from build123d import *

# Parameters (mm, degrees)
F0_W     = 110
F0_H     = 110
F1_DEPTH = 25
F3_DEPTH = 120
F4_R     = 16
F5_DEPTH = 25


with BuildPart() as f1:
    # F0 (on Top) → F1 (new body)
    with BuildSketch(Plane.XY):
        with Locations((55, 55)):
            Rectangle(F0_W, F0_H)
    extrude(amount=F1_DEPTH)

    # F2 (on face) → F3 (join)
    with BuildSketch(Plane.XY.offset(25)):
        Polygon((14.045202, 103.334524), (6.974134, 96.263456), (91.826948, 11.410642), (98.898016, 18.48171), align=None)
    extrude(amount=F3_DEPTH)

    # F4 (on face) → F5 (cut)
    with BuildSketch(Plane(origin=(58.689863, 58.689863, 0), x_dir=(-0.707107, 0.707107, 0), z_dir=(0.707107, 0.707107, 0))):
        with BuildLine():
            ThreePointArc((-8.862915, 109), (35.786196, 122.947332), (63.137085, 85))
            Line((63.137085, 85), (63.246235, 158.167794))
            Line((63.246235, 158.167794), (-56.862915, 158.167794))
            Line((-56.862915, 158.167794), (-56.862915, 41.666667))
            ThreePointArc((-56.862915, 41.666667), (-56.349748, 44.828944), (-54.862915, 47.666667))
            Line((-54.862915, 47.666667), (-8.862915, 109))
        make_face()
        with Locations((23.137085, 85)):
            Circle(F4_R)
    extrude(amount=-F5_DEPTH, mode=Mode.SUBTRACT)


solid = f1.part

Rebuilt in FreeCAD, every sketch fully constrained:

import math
import FreeCAD as App
import Part
import Sketcher
Q = App.Units.Quantity


def add_polygon(sketch, points):
    """Adds a closed chain of lines whose ends are joined by coincident constraints."""
    first, n = sketch.GeometryCount, len(points)
    for a, b in zip(points, points[1:] + points[:1]):
        sketch.addGeometry(Part.LineSegment(App.Vector(*a, 0), App.Vector(*b, 0)), False)
    for i in range(n):
        sketch.addConstraint(Sketcher.Constraint("Coincident", first + i, 2, first + (i + 1) % n, 1))

doc = App.newDocument("Part")
params = doc.addObject("Spreadsheet::Sheet", "Params")
for row, (alias, value) in enumerate([
    ("sketch1_width", "110 mm"),
    ("pad1_length", "25 mm"),
    ("sketch2_length", "10 mm"),
    ("sketch2_length2", "120 mm"),
    ("pad2_length", "120 mm"),
    ("sketch3_diameter", "32 mm"),
    ("sketch3_radius", "40 mm"),
    ("pocket1_length", "25 mm"),
], start=1):
    params.set(f"A{row}", alias)
    params.set(f"B{row}", "=" + value)
    params.setAlias(f"B{row}", alias)

body = doc.addObject("PartDesign::Body", "Body")

# Sketch on XY plane
sketch1 = body.newObject("Sketcher::SketchObject", "Sketch")
sketch1.AttachmentSupport = (doc.getObject("XY_Plane"), [""])
sketch1.MapMode = "FlatFace"
add_polygon(sketch1, [(0, 110), (0, 0), (110, 0), (110, 110)])  # lines 0-3
sketch1.addConstraint(Sketcher.Constraint("Vertical", 0))
sketch1.addConstraint(Sketcher.Constraint("Horizontal", 1))
sketch1.addConstraint(Sketcher.Constraint("Vertical", 2))
sketch1.addConstraint(Sketcher.Constraint("Horizontal", 3))
sketch1.addConstraint(Sketcher.Constraint("Coincident", 0, 2, -1, 1))
sketch1.addConstraint(Sketcher.Constraint("Equal", 3, 0))
sketch1.addConstraint(Sketcher.Constraint("DistanceX", 1, 1, 1, 2, 110.0))
sketch1.setExpression("Constraints[10]", "Params.sketch1_width")
pad1 = body.newObject("PartDesign::Pad", "Pad")
pad1.Profile = sketch1
pad1.setExpression("Length", "Params.pad1_length")

# Sketch on XY plane
sketch2 = body.newObject("Sketcher::SketchObject", "Sketch001")
sketch2.AttachmentSupport = (doc.getObject("XY_Plane"), [""])
sketch2.MapMode = "FlatFace"
sketch2.AttachmentOffset = App.Placement(App.Vector(0, 0, 25), App.Rotation())
add_polygon(sketch2, [(14, 103), (7, 96), (92, 11), (99, 18)])  # lines 0-3
sketch2.addConstraint(Sketcher.Constraint("Perpendicular", 0, 1))
sketch2.addConstraint(Sketcher.Constraint("Perpendicular", 1, 2))
sketch2.addConstraint(Sketcher.Constraint("Perpendicular", 2, 3))
sketch2.addConstraint(Sketcher.Constraint("Angle", 0, Q("-135 deg")))
sketch2.addConstraint(Sketcher.Constraint("Distance", 0, 10.0))
sketch2.addConstraint(Sketcher.Constraint("Distance", 1, 120.0))
sketch2.addConstraint(Sketcher.Constraint("DistanceX", -1, 1, 1, 2, 91.826948))
sketch2.addConstraint(Sketcher.Constraint("DistanceY", -1, 1, 1, 2, 11.410642))
sketch2.setExpression("Constraints[8]", "Params.sketch2_length")
sketch2.setExpression("Constraints[9]", "Params.sketch2_length2")
pad2 = body.newObject("PartDesign::Pad", "Pad001")
pad2.Profile = sketch2
pad2.setExpression("Length", "Params.pad2_length")

# Sketch on an angled plane
sketch3 = body.newObject("Sketcher::SketchObject", "Sketch002")
sketch3.Placement = App.Placement(App.Vector(58.689863, 58.689863, 0), App.Rotation(App.Vector(-0.707106781, 0.707106781, 0), App.Vector(0, 0, 0.999999999), App.Vector(0.707106781, 0.707106781, 0), "ZXY"))
sketch3.addGeometry(Part.ArcOfCircle(Part.Circle(App.Vector(23, 85, 0), App.Vector(0, 0, 1), 40), math.radians(0), math.radians(143)), False)
sketch3.addGeometry(Part.LineSegment(App.Vector(63, 85, 0), App.Vector(63, 158, 0)), False)
sketch3.addGeometry(Part.LineSegment(App.Vector(63, 158, 0), App.Vector(-57, 158, 0)), False)
sketch3.addGeometry(Part.LineSegment(App.Vector(-57, 158, 0), App.Vector(-57, 42, 0)), False)
sketch3.addGeometry(Part.ArcOfCircle(Part.Circle(App.Vector(-47, 42, 0), App.Vector(0, 0, 1), 10), math.radians(143), math.radians(180)), False)
sketch3.addGeometry(Part.LineSegment(App.Vector(-55, 48, 0), App.Vector(-9, 109, 0)), False)
sketch3.addGeometry(Part.Circle(App.Vector(23, 85, 0), App.Vector(0, 0, 1), 16), False)
sketch3.addConstraint(Sketcher.Constraint("Coincident", 0, 1, 1, 1))
sketch3.addConstraint(Sketcher.Constraint("Coincident", 1, 2, 2, 1))
sketch3.addConstraint(Sketcher.Constraint("Coincident", 2, 2, 3, 1))
sketch3.addConstraint(Sketcher.Constraint("Tangent", 3, 2, 4, 2))
sketch3.addConstraint(Sketcher.Constraint("Tangent", 4, 1, 5, 1))
sketch3.addConstraint(Sketcher.Constraint("Tangent", 5, 2, 0, 2))
sketch3.addConstraint(Sketcher.Constraint("Horizontal", 2))
sketch3.addConstraint(Sketcher.Constraint("Vertical", 3))
sketch3.addConstraint(Sketcher.Constraint("Coincident", 6, 3, 0, 3))
sketch3.addConstraint(Sketcher.Constraint("Horizontal", 6, 3, 0, 1))
sketch3.addConstraint(Sketcher.Constraint("Diameter", 6, 32.0))
sketch3.addConstraint(Sketcher.Constraint("Radius", 0, 40.0))
sketch3.addConstraint(Sketcher.Constraint("DistanceY", -1, 1, 0, 3, 85.0))
sketch3.addConstraint(Sketcher.Constraint("DistanceY", -1, 1, 5, 2, 109.0))
sketch3.addConstraint(Sketcher.Constraint("DistanceX", 2, 2, 0, 3, 80.0))
sketch3.addConstraint(Sketcher.Constraint("DistanceX", 3, 2, 4, 1, 2.0))
sketch3.addConstraint(Sketcher.Constraint("DistanceX", 2, 2, 2, 1, 120.10915))
sketch3.addConstraint(Sketcher.Constraint("DistanceY", 3, 2, 3, 1, 116.501127))
sketch3.addConstraint(Sketcher.Constraint("DistanceX", 4, 3, -1, 1, 46.862911))
sketch3.setExpression("Constraints[10]", "Params.sketch3_diameter")
sketch3.setExpression("Constraints[11]", "Params.sketch3_radius")
pocket1 = body.newObject("PartDesign::Pocket", "Pocket")
pocket1.Profile = sketch3
pocket1.setExpression("Length", "Params.pocket1_length")

doc.recompute()
